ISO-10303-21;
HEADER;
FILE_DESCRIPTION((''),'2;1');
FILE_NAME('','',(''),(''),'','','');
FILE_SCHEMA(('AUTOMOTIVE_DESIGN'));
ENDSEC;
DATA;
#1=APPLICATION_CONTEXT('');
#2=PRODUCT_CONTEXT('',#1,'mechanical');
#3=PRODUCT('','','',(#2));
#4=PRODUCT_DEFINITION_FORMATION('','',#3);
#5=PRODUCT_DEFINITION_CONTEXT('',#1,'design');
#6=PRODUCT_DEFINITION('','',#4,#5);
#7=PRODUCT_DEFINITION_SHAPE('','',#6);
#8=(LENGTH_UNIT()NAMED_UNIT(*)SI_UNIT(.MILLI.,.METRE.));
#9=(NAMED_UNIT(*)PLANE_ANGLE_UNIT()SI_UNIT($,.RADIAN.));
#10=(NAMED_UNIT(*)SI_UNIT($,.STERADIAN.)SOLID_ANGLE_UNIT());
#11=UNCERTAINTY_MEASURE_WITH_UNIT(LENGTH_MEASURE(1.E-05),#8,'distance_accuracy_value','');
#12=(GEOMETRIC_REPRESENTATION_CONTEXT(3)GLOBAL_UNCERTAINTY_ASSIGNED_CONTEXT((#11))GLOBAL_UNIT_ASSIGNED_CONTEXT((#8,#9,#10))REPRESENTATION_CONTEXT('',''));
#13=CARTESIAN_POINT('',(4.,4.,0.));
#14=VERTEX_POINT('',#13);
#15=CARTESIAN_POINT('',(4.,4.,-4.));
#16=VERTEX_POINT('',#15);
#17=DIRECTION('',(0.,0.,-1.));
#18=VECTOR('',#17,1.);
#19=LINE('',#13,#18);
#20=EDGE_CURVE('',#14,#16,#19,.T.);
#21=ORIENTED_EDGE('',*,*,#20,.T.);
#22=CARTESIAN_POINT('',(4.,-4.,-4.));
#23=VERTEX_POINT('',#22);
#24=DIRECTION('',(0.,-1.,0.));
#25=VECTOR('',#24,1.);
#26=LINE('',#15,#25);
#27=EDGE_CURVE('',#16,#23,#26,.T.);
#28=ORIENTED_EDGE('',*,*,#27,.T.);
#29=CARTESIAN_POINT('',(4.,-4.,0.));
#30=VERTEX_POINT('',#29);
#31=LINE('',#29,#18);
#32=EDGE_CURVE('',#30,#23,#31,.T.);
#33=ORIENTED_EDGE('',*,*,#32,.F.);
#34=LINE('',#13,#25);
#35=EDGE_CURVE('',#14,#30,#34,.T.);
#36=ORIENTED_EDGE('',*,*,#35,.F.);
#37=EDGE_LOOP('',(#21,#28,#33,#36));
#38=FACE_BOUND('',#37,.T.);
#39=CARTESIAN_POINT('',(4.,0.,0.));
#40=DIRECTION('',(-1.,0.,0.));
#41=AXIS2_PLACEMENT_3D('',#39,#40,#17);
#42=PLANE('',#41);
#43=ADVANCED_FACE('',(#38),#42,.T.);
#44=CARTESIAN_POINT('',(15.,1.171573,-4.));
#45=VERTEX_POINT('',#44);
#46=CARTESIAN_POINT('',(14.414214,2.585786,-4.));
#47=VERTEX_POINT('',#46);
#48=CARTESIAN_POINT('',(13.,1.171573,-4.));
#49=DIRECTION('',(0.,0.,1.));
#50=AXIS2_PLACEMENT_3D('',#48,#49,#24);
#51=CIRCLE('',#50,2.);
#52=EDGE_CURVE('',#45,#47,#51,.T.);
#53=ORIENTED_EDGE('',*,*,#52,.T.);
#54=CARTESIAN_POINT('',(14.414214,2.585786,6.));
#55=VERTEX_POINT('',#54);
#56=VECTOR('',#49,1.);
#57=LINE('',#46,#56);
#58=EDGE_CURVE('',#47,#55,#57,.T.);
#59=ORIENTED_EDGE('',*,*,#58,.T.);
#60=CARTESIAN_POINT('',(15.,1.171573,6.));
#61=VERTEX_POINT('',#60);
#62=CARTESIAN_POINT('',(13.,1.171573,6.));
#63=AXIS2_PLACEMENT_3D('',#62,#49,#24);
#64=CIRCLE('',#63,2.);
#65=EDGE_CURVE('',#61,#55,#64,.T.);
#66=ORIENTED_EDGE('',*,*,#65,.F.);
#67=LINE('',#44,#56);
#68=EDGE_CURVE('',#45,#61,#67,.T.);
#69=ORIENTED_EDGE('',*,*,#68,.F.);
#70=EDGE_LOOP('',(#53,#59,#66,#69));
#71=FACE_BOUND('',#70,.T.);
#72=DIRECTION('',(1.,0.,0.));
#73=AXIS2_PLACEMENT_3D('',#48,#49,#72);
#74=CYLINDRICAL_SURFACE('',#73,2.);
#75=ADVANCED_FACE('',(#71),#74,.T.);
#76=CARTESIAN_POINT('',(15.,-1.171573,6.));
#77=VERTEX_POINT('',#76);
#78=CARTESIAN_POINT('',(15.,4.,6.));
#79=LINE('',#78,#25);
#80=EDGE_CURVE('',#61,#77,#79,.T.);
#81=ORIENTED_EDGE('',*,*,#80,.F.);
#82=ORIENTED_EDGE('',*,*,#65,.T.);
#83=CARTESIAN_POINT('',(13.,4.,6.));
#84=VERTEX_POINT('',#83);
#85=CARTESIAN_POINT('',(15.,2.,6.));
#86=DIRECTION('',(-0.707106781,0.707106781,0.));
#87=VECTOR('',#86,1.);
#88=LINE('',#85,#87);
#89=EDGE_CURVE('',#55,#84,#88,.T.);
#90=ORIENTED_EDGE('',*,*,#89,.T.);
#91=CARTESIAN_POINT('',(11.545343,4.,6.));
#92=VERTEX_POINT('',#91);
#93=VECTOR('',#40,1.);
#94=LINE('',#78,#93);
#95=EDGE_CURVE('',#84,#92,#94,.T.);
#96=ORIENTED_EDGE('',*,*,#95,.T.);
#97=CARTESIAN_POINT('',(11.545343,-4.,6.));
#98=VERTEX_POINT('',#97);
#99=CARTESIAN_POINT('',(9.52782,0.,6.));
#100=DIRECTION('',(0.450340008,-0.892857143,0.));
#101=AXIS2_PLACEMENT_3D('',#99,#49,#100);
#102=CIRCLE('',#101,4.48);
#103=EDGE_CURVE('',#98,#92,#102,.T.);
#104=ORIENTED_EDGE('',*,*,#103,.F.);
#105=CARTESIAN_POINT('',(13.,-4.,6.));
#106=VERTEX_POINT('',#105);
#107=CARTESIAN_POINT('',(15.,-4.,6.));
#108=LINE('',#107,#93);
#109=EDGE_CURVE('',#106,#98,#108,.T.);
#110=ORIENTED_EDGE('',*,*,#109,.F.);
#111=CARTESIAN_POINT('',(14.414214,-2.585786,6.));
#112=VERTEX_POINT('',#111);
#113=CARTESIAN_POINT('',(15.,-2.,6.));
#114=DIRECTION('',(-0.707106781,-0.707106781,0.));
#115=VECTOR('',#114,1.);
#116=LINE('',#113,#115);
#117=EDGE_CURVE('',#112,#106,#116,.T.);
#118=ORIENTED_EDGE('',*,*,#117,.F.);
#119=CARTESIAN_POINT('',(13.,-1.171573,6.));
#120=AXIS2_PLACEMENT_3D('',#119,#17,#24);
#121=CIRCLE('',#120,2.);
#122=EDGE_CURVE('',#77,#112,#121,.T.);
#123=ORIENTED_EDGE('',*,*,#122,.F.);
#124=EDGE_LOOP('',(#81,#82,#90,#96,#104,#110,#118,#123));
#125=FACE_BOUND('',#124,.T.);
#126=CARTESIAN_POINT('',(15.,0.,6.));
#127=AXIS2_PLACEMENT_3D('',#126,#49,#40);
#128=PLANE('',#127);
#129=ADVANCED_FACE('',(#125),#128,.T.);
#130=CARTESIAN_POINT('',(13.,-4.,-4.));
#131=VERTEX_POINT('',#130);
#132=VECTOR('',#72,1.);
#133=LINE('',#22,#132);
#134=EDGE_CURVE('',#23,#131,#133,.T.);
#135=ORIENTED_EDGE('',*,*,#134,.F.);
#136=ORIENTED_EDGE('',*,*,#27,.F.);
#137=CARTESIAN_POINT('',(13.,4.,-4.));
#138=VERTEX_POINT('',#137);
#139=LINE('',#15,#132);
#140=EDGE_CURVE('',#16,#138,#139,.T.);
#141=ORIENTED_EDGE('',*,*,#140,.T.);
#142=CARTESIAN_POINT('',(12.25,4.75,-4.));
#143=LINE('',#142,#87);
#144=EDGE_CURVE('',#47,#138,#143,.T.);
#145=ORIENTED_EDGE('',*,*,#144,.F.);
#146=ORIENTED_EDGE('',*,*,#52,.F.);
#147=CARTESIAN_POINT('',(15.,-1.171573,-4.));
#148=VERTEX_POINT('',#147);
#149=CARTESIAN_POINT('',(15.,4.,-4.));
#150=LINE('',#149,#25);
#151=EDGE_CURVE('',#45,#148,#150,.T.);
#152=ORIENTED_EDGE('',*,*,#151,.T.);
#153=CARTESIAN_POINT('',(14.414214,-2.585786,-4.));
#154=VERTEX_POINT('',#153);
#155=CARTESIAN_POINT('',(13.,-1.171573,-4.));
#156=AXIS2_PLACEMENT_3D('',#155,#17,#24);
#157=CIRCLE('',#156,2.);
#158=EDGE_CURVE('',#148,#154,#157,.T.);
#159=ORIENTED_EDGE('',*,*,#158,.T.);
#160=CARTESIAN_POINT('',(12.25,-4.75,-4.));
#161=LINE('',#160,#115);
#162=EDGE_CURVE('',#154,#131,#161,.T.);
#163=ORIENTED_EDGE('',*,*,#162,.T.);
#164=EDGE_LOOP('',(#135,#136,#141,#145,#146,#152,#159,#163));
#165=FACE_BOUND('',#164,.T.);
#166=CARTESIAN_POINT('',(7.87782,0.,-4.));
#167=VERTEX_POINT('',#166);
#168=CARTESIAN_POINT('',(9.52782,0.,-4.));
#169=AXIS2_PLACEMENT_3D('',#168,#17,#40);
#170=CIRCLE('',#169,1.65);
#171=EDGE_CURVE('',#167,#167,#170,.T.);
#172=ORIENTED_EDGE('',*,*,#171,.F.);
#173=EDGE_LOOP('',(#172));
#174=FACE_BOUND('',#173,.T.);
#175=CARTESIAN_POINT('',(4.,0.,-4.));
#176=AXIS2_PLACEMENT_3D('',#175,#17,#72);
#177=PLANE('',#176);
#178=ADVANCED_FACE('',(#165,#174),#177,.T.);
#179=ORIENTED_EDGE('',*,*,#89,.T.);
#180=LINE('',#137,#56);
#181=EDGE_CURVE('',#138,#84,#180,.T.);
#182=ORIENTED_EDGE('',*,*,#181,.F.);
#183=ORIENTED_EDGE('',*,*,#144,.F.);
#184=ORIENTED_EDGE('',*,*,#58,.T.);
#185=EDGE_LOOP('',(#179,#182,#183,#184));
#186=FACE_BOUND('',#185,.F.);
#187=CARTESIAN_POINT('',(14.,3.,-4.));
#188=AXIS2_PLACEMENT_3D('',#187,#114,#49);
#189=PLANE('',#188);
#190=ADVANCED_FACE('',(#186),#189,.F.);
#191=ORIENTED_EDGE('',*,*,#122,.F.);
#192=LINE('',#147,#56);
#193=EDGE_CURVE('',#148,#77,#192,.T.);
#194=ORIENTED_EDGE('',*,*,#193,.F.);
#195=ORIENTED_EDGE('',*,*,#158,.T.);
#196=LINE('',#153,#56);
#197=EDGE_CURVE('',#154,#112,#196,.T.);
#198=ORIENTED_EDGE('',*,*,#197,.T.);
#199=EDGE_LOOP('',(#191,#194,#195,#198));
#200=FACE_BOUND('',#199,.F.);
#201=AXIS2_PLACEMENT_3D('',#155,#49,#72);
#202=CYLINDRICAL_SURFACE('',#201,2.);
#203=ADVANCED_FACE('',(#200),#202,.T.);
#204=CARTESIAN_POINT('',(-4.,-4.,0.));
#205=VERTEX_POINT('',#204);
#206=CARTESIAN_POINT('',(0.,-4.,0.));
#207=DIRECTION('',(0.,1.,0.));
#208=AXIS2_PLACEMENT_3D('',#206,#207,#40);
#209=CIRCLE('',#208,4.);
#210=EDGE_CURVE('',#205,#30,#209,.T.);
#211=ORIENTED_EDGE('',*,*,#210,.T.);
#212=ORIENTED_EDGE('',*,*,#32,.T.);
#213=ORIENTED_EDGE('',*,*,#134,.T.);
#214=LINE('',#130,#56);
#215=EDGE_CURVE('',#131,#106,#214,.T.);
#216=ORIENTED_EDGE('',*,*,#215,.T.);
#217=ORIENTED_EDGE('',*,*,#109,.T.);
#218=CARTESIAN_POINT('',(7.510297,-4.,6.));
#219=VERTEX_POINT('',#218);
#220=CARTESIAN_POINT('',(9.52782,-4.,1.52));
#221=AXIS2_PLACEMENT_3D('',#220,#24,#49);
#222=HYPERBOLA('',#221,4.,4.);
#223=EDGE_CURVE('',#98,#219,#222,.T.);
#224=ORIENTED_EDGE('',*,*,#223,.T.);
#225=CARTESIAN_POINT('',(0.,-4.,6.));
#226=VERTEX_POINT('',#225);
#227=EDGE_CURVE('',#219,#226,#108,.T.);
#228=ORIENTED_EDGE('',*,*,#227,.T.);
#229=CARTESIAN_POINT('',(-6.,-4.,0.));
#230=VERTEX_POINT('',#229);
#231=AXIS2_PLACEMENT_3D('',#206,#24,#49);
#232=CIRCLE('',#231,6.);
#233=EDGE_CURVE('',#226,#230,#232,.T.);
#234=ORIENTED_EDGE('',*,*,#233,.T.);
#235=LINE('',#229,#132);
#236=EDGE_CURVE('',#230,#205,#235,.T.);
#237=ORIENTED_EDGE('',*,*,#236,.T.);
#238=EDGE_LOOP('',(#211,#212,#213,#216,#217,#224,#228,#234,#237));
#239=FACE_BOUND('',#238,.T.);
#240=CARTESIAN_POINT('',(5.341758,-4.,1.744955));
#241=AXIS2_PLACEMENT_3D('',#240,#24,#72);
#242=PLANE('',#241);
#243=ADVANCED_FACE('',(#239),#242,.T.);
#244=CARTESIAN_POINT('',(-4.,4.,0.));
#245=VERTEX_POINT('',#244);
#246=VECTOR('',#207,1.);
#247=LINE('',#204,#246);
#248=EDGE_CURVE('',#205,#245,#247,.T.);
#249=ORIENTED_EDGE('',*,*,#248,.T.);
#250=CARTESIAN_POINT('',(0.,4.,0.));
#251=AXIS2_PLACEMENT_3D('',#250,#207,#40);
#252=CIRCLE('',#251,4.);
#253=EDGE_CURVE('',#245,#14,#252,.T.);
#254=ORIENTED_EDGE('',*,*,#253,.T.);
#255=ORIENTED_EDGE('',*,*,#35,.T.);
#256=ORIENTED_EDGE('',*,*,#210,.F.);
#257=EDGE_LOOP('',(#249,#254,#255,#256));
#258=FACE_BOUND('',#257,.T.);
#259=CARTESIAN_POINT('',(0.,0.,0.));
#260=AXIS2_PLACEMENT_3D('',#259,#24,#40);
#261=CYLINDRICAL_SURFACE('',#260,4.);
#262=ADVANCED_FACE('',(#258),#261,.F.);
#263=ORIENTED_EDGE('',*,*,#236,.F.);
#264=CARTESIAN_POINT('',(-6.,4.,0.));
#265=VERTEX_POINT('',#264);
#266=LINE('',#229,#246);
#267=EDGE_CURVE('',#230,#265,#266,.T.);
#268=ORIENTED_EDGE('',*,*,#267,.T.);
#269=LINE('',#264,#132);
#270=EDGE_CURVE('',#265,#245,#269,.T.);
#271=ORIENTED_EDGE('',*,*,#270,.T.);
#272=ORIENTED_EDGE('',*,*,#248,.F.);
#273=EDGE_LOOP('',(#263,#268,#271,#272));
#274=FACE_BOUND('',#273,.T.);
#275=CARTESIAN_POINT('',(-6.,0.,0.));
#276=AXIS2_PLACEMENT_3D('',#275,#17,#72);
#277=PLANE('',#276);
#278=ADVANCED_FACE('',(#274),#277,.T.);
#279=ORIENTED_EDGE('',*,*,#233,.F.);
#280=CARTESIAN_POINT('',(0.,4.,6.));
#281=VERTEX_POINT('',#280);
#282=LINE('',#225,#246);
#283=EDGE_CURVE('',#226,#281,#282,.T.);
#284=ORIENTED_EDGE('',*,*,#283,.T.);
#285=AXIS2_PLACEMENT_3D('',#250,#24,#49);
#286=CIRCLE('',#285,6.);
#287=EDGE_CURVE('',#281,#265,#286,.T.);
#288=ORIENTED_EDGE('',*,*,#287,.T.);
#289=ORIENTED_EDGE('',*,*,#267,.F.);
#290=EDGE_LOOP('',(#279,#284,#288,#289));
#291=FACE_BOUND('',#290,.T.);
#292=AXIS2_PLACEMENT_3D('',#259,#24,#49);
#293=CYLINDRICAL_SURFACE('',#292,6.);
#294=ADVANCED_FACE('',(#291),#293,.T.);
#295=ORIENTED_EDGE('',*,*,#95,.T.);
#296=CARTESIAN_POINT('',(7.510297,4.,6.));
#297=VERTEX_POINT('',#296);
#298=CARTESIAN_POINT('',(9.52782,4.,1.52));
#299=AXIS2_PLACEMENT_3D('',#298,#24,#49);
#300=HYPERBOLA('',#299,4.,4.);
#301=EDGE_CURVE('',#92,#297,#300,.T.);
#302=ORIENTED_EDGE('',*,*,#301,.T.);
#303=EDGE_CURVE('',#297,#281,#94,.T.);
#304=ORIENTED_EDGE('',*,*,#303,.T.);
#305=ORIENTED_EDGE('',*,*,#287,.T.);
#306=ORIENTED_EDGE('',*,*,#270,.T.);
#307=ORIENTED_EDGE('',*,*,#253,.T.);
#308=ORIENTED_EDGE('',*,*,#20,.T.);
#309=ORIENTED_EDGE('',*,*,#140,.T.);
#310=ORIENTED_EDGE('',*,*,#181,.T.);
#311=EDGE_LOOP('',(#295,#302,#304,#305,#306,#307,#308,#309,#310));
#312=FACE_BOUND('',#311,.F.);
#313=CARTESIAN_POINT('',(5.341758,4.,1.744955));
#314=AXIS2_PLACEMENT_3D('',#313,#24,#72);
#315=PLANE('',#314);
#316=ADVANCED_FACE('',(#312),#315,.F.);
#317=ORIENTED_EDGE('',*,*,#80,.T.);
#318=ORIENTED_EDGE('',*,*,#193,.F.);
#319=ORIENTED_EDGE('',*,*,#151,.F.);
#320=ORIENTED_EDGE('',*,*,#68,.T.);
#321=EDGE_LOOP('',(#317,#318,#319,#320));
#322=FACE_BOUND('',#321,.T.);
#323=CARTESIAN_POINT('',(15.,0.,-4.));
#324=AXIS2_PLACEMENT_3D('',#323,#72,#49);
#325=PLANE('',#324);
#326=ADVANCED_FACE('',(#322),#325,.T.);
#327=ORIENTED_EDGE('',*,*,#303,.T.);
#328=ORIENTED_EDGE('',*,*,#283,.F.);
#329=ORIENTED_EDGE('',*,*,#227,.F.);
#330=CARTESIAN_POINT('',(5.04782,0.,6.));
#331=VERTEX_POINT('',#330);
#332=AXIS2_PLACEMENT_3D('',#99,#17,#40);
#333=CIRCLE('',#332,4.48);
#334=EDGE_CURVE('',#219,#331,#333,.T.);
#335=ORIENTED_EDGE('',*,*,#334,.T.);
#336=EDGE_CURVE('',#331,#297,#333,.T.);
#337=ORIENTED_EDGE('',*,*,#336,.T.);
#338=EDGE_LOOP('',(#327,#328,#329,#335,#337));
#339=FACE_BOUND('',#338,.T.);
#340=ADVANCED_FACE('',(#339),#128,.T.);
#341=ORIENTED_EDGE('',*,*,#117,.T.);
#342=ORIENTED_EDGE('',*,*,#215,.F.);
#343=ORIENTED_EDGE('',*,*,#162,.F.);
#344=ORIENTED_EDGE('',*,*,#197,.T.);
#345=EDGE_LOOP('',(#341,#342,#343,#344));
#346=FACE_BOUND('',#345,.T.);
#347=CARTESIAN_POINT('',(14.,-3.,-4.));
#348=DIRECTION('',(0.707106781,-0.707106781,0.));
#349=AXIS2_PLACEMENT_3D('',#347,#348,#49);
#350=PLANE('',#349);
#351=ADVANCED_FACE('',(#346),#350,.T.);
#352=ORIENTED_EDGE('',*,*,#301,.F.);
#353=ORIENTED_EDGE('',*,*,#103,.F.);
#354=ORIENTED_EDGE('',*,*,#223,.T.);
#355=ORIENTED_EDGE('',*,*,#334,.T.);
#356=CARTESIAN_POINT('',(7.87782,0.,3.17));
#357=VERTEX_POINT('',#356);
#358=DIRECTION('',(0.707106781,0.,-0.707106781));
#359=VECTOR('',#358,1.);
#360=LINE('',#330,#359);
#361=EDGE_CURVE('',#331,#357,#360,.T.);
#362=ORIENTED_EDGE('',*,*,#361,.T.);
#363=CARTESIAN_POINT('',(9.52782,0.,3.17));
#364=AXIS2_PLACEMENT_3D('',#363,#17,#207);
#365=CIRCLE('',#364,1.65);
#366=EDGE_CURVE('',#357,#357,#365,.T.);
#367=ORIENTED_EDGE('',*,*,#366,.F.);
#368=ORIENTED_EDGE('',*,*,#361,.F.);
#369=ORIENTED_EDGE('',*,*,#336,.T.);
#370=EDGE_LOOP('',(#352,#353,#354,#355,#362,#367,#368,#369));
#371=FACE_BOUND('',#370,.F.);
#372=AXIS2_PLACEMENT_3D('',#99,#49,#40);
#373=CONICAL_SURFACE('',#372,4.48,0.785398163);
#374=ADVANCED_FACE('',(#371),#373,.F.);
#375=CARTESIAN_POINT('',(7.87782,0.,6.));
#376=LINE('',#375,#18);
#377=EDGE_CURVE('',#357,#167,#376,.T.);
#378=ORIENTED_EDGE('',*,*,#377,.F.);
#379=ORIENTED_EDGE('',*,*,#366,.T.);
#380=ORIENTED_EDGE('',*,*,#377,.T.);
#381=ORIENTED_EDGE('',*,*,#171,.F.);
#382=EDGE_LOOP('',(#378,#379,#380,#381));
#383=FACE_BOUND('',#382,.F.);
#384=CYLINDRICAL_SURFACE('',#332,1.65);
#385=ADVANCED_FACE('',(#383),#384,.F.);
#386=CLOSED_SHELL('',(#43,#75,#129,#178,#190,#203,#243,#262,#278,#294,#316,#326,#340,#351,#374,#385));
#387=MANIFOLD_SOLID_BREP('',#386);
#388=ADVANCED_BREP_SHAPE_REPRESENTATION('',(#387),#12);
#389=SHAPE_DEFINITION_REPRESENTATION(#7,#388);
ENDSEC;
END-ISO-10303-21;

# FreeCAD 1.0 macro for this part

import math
import FreeCAD as App
import Part
import Sketcher
from FreeCAD import Vector
Q = App.Units.Quantity


def edges_at(feature, points):
    """Names of the edges that pass closest to the given points."""
    edges = feature.Shape.Edges
    near = lambda p: min(range(len(edges)), key=lambda i: edges[i].distToShape(Part.Vertex(*p))[0])
    return sorted({f"Edge{near(p) + 1}" for p in points})

doc = App.newDocument("Part")
body = doc.addObject("PartDesign::Body", "Body")

sketch1 = body.newObject("Sketcher::SketchObject", "Sketch")
sketch1.AttachmentSupport = (doc.getObject("XZ_Plane"), [""])
sketch1.MapMode = "FlatFace"
sketch1.addGeometry([
    Part.ArcOfCircle(Part.Circle(Vector(0, 0, 0), Vector(0, 0, 1), 4), math.radians(0), math.radians(180)),
    Part.LineSegment(Vector(4, 0, 0), Vector(4, -4, 0)),
    Part.LineSegment(Vector(4, -4, 0), Vector(15, -4, 0)),
    Part.LineSegment(Vector(15, -4, 0), Vector(15, 6, 0)),
    Part.LineSegment(Vector(15, 6, 0), Vector(0, 6, 0)),
    Part.ArcOfCircle(Part.Circle(Vector(0, 0, 0), Vector(0, 0, 1), 6), math.radians(90), math.radians(180)),
    Part.LineSegment(Vector(-6, 0, 0), Vector(-4, 0, 0)),
], False)
sketch1.addConstraint([
    Sketcher.Constraint("Tangent", 0, 1, 1, 1),
    Sketcher.Constraint("Coincident", 1, 2, 2, 1),
    Sketcher.Constraint("Coincident", 2, 2, 3, 1),
    Sketcher.Constraint("Coincident", 3, 2, 4, 1),
    Sketcher.Constraint("Tangent", 4, 2, 5, 1),
    Sketcher.Constraint("Coincident", 5, 2, 6, 1),
    Sketcher.Constraint("Coincident", 6, 2, 0, 2),
    Sketcher.Constraint("Vertical", 1),
    Sketcher.Constraint("Horizontal", 2),
    Sketcher.Constraint("Vertical", 3),
    Sketcher.Constraint("Horizontal", 4),
    Sketcher.Constraint("Horizontal", 6),
    Sketcher.Constraint("Coincident", 0, 3, -1, 1),
    Sketcher.Constraint("Coincident", 5, 3, -1, 1),
    Sketcher.Constraint("PointOnObject", 5, 2, -1),
    Sketcher.Constraint("Radius", 0, Q("4 mm")),
    Sketcher.Constraint("Radius", 5, Q("6 mm")),
    Sketcher.Constraint("DistanceX", 2, 1, 2, 2, Q("11 mm")),
    Sketcher.Constraint("DistanceY", 1, 2, 1, 1, Q("4 mm")),
])
pad1 = body.newObject("PartDesign::Pad", "Pad")
pad1.Profile = sketch1
pad1.Length = 8
pad1.Midplane = True

sketch2 = body.newObject("Sketcher::SketchObject", "Sketch001")
sketch2.AttachmentSupport = (doc.getObject("XY_Plane"), [""])
sketch2.MapMode = "FlatFace"
sketch2.AttachmentOffset = App.Placement(Vector(0, 0, 6), App.Rotation())
sketch2.addGeometry(Part.Circle(Vector(9.5, 0, 0), Vector(0, 0, 1), 1.6), False)
sketch2.addConstraint([
    Sketcher.Constraint("PointOnObject", 0, 3, -1),
    Sketcher.Constraint("Diameter", 0, Q("3.3 mm")),
    Sketcher.Constraint("DistanceX", -1, 1, 0, 3, Q("9.52782 mm")),
])
doc.recompute()
hole = body.newObject("PartDesign::Hole", "Hole")
hole.Profile = sketch2
hole.ThreadType = "None"
hole.Diameter = 3.3
hole.DepthType = "ThroughAll"
hole.HoleCutType = "Countersink"
hole.HoleCutDiameter = 8.96
hole.HoleCutCountersinkAngle = 90
doc.recompute()

chamfer = body.newObject("PartDesign::Chamfer", "Chamfer")
chamfer.Base = (hole, edges_at(hole, [(15, 4, 1), (15, -4, 1)]))
chamfer.Size = 2
doc.recompute()

fillet = body.newObject("PartDesign::Fillet", "Fillet")
fillet.Base = (chamfer, edges_at(chamfer, [(15, -2, 1), (15, 2, 1)]))
fillet.Radius = 2

doc.recompute()
